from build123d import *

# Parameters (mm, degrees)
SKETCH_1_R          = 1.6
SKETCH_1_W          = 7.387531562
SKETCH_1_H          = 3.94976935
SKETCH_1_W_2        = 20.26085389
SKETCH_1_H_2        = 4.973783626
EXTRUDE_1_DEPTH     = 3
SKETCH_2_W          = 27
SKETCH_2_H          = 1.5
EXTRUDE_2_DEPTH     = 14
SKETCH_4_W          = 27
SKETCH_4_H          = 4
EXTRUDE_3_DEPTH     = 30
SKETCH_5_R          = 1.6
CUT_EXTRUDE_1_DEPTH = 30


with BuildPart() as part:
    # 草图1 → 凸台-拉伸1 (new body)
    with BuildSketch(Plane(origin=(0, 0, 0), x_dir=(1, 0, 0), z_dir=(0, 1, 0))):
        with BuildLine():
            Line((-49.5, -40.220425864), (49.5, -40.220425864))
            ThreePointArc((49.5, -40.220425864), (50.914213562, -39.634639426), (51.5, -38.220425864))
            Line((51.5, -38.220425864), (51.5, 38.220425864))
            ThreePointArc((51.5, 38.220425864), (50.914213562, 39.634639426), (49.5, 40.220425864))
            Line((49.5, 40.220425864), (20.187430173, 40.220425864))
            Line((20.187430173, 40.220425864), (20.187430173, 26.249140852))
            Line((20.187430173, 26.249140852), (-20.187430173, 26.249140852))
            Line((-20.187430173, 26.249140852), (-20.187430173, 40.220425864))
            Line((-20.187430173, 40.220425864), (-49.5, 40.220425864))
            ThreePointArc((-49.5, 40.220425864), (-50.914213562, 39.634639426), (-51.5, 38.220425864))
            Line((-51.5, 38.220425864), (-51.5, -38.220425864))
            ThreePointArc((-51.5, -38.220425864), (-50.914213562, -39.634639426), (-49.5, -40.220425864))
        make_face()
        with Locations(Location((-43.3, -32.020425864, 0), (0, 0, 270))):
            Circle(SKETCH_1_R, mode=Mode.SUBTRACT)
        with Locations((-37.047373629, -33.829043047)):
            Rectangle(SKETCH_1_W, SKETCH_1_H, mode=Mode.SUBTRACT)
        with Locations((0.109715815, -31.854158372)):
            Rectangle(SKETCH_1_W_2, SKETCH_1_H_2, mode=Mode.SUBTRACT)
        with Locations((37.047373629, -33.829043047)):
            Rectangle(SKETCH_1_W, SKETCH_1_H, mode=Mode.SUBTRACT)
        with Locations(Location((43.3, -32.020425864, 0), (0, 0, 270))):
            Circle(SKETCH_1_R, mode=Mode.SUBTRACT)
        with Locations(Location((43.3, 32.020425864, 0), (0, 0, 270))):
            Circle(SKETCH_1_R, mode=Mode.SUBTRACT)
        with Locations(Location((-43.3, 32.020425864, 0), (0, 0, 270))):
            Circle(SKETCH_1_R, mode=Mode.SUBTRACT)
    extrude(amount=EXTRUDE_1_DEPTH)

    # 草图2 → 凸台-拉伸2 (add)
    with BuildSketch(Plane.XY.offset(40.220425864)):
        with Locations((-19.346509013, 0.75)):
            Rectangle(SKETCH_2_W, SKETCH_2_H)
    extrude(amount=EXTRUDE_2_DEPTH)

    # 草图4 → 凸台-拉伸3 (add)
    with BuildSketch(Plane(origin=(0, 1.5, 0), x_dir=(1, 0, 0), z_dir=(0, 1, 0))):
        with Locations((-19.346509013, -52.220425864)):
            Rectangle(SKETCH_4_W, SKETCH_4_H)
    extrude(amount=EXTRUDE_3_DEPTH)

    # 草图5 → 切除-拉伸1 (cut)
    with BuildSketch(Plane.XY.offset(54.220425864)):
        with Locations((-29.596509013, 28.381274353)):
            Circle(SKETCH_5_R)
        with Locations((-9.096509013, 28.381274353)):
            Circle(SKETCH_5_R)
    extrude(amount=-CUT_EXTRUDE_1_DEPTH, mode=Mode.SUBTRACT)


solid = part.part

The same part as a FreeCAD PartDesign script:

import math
import FreeCAD as App
import Part
import Sketcher

V = App.Vector
Q = App.Units.Quantity

doc = App.newDocument("Part")
params = doc.addObject("Spreadsheet::Sheet", "Params")
for row, (alias, value) in enumerate([
    ("sketch1_radius", "2 mm"),
    ("sketch1_diameter", "3.2 mm"),
    ("sketch1_width", "99 mm"),
    ("pad1_length", "3 mm"),
    ("sketch2_width", "27 mm"),
    ("sketch2_height", "1.5 mm"),
    ("pad2_length", "14 mm"),
    ("sketch3_width", "27 mm"),
    ("sketch3_height", "4 mm"),
    ("pad3_length", "30 mm"),
    ("sketch4_diameter", "3.2 mm"),
    ("pocket1_length", "30 mm"),
], start=1):
    params.set(f"A{row}", alias)
    params.set(f"B{row}", "=" + value)
    params.setAlias(f"B{row}", alias)

body = doc.addObject("PartDesign::Body", "Body")

sketch1 = body.newObject("Sketcher::SketchObject", "Sketch")
sketch1.AttachmentSupport = (doc.getObject("XZ_Plane"), [""])
sketch1.MapMode = "FlatFace"
sketch1.addGeometry(Part.LineSegment(V(-49.5, 40.220426, 0), V(49.5, 40.220426, 0)), False)
sketch1.addGeometry(Part.ArcOfCircle(Part.Circle(V(49.5, 38.220426, 0), V(0, 0, 1), 2), math.radians(0), math.radians(90)), False)
sketch1.addGeometry(Part.LineSegment(V(51.5, 38.220426, 0), V(51.5, -38.220426, 0)), False)
sketch1.addGeometry(Part.ArcOfCircle(Part.Circle(V(49.5, -38.220426, 0), V(0, 0, 1), 2), math.radians(-90), math.radians(0)), False)
sketch1.addGeometry(Part.LineSegment(V(49.5, -40.220426, 0), V(20.18743, -40.220426, 0)), False)
sketch1.addGeometry(Part.LineSegment(V(20.18743, -40.220426, 0), V(20.18743, -26.249141, 0)), False)
sketch1.addGeometry(Part.LineSegment(V(20.18743, -26.249141, 0), V(-20.18743, -26.249141, 0)), False)
sketch1.addGeometry(Part.LineSegment(V(-20.18743, -26.249141, 0), V(-20.18743, -40.220426, 0)), False)
sketch1.addGeometry(Part.LineSegment(V(-20.18743, -40.220426, 0), V(-49.5, -40.220426, 0)), False)
sketch1.addGeometry(Part.ArcOfCircle(Part.Circle(V(-49.5, -38.220426, 0), V(0, 0, 1), 2), math.radians(-180), math.radians(-90)), False)
sketch1.addGeometry(Part.LineSegment(V(-51.5, -38.220426, 0), V(-51.5, 38.220426, 0)), False)
sketch1.addGeometry(Part.ArcOfCircle(Part.Circle(V(-49.5, 38.220426, 0), V(0, 0, 1), 2), math.radians(90), math.radians(180)), False)
sketch1.addGeometry(Part.Circle(V(-43.3, 32.020426, 0), V(0, 0, 1), 1.6), False)
sketch1.addGeometry(Part.LineSegment(V(-33.353608, 35.803928, 0), V(-40.741139, 35.803928, 0)), False)
sketch1.addGeometry(Part.LineSegment(V(-40.741139, 35.803928, 0), V(-40.741139, 31.854158, 0)), False)
sketch1.addGeometry(Part.LineSegment(V(-40.741139, 31.854158, 0), V(-33.353608, 31.854158, 0)), False)
sketch1.addGeometry(Part.LineSegment(V(-33.353608, 31.854158, 0), V(-33.353608, 35.803928, 0)), False)
sketch1.addGeometry(Part.LineSegment(V(10.240143, 34.34105, 0), V(-10.020711, 34.34105, 0)), False)
sketch1.addGeometry(Part.LineSegment(V(-10.020711, 34.34105, 0), V(-10.020711, 29.367267, 0)), False)
sketch1.addGeometry(Part.LineSegment(V(-10.020711, 29.367267, 0), V(10.240143, 29.367267, 0)), False)
sketch1.addGeometry(Part.LineSegment(V(10.240143, 29.367267, 0), V(10.240143, 34.34105, 0)), False)
sketch1.addGeometry(Part.LineSegment(V(40.741139, 35.803928, 0), V(33.353608, 35.803928, 0)), False)
sketch1.addGeometry(Part.LineSegment(V(33.353608, 35.803928, 0), V(33.353608, 31.854158, 0)), False)
sketch1.addGeometry(Part.LineSegment(V(33.353608, 31.854158, 0), V(40.741139, 31.854158, 0)), False)
sketch1.addGeometry(Part.LineSegment(V(40.741139, 31.854158, 0), V(40.741139, 35.803928, 0)), False)
sketch1.addGeometry(Part.Circle(V(43.3, 32.020426, 0), V(0, 0, 1), 1.6), False)
sketch1.addGeometry(Part.Circle(V(-43.3, -32.020426, 0), V(0, 0, 1), 1.6), False)
sketch1.addGeometry(Part.Circle(V(43.3, -32.020426, 0), V(0, 0, 1), 1.6), False)
sketch1.addConstraint(Sketcher.Constraint("Tangent", 0, 2, 1, 2))
sketch1.addConstraint(Sketcher.Constraint("Tangent", 1, 1, 2, 1))
sketch1.addConstraint(Sketcher.Constraint("Tangent", 2, 2, 3, 2))
sketch1.addConstraint(Sketcher.Constraint("Tangent", 3, 1, 4, 1))
sketch1.addConstraint(Sketcher.Constraint("Coincident", 4, 2, 5, 1))
sketch1.addConstraint(Sketcher.Constraint("Coincident", 5, 2, 6, 1))
sketch1.addConstraint(Sketcher.Constraint("Coincident", 6, 2, 7, 1))
sketch1.addConstraint(Sketcher.Constraint("Coincident", 7, 2, 8, 1))
sketch1.addConstraint(Sketcher.Constraint("Tangent", 8, 2, 9, 2))
sketch1.addConstraint(Sketcher.Constraint("Tangent", 9, 1, 10, 1))
sketch1.addConstraint(Sketcher.Constraint("Tangent", 10, 2, 11, 2))
sketch1.addConstraint(Sketcher.Constraint("Tangent", 11, 1, 0, 1))
sketch1.addConstraint(Sketcher.Constraint("Coincident", 13, 2, 14, 1))
sketch1.addConstraint(Sketcher.Constraint("Coincident", 14, 2, 15, 1))
sketch1.addConstraint(Sketcher.Constraint("Coincident", 15, 2, 16, 1))
sketch1.addConstraint(Sketcher.Constraint("Coincident", 16, 2, 13, 1))
sketch1.addConstraint(Sketcher.Constraint("Coincident", 17, 2, 18, 1))
sketch1.addConstraint(Sketcher.Constraint("Coincident", 18, 2, 19, 1))
sketch1.addConstraint(Sketcher.Constraint("Coincident", 19, 2, 20, 1))
sketch1.addConstraint(Sketcher.Constraint("Coincident", 20, 2, 17, 1))
sketch1.addConstraint(Sketcher.Constraint("Coincident", 21, 2, 22, 1))
sketch1.addConstraint(Sketcher.Constraint("Coincident", 22, 2, 23, 1))
sketch1.addConstraint(Sketcher.Constraint("Coincident", 23, 2, 24, 1))
sketch1.addConstraint(Sketcher.Constraint("Coincident", 24, 2, 21, 1))
sketch1.addConstraint(Sketcher.Constraint("Horizontal", 0))
sketch1.addConstraint(Sketcher.Constraint("Vertical", 2))
sketch1.addConstraint(Sketcher.Constraint("Horizontal", 4))
sketch1.addConstraint(Sketcher.Constraint("Vertical", 5))
sketch1.addConstraint(Sketcher.Constraint("Horizontal", 6))
sketch1.addConstraint(Sketcher.Constraint("Vertical", 7))
sketch1.addConstraint(Sketcher.Constraint("Horizontal", 8))
sketch1.addConstraint(Sketcher.Constraint("Vertical", 10))
sketch1.addConstraint(Sketcher.Constraint("Horizontal", 13))
sketch1.addConstraint(Sketcher.Constraint("Vertical", 14))
sketch1.addConstraint(Sketcher.Constraint("Horizontal", 15))
sketch1.addConstraint(Sketcher.Constraint("Vertical", 16))
sketch1.addConstraint(Sketcher.Constraint("Horizontal", 17))
sketch1.addConstraint(Sketcher.Constraint("Vertical", 18))
sketch1.addConstraint(Sketcher.Constraint("Horizontal", 19))
sketch1.addConstraint(Sketcher.Constraint("Vertical", 20))
sketch1.addConstraint(Sketcher.Constraint("Horizontal", 21))
sketch1.addConstraint(Sketcher.Constraint("Vertical", 22))
sketch1.addConstraint(Sketcher.Constraint("Horizontal", 23))
sketch1.addConstraint(Sketcher.Constraint("Vertical", 24))
sketch1.addConstraint(Sketcher.Constraint("Equal", 1, 3))
sketch1.addConstraint(Sketcher.Constraint("Equal", 3, 9))
sketch1.addConstraint(Sketcher.Constraint("Equal", 9, 11))
sketch1.addConstraint(Sketcher.Constraint("Equal", 12, 25))
sketch1.addConstraint(Sketcher.Constraint("Equal", 25, 26))
sketch1.addConstraint(Sketcher.Constraint("Equal", 26, 27))
sketch1.addConstraint(Sketcher.Constraint("Symmetric", 1, 3, 9, 3, -1, 1))
sketch1.addConstraint(Sketcher.Constraint("Symmetric", 25, 3, 26, 3, -1, 1))
sketch1.addConstraint(Sketcher.Constraint("Symmetric", 12, 3, 27, 3, -1, 1))
sketch1.addConstraint(Sketcher.Constraint("Symmetric", 12, 3, 25, 3, -2))
sketch1.addConstraint(Sketcher.Constraint("Symmetric", 4, 2, 7, 2, -2))
sketch1.addConstraint(Sketcher.Constraint("Symmetric", 16, 2, 21, 2, -2))
sketch1.addConstraint(Sketcher.Constraint("Symmetric", 14, 2, 23, 2, -2))
sketch1.addConstraint(Sketcher.Constraint("Radius", 1, Q("2 mm")))
sketch1.addConstraint(Sketcher.Constraint("Diameter", 12, Q("3.2 mm")))
sketch1.addConstraint(Sketcher.Constraint("DistanceX", 0, 1, 0, 2, Q("99 mm")))
sketch1.addConstraint(Sketcher.Constraint("DistanceX", 12, 3, -1, 1, Q("43.3 mm")))
sketch1.addConstraint(Sketcher.Constraint("DistanceY", 12, 3, 11, 3, Q("6.2 mm")))
sketch1.addConstraint(Sketcher.Constraint("DistanceX", 4, 2, 4, 1, Q("29.31257 mm")))
sketch1.addConstraint(Sketcher.Constraint("DistanceX", 13, 2, 13, 1, Q("7.387532 mm")))
sketch1.addConstraint(Sketcher.Constraint("DistanceY", 2, 2, 2, 1, Q("76.440852 mm")))
sketch1.addConstraint(Sketcher.Constraint("DistanceY", 14, 2, 14, 1, Q("3.949769 mm")))
sketch1.addConstraint(Sketcher.Constraint("DistanceY", 12, 3, 13, 2, Q("3.783502 mm")))
sketch1.addConstraint(Sketcher.Constraint("DistanceX", 17, 2, 17, 1, Q("20.260854 mm")))
sketch1.addConstraint(Sketcher.Constraint("DistanceY", 5, 1, 5, 2, Q("13.971285 mm")))
sketch1.addConstraint(Sketcher.Constraint("DistanceY", 18, 2, 18, 1, Q("4.973784 mm")))
sketch1.addConstraint(Sketcher.Constraint("DistanceX", 13, 2, -1, 1, Q("40.741139 mm")))
sketch1.addConstraint(Sketcher.Constraint("DistanceX", 17, 2, -1, 1, Q("10.020711 mm")))
sketch1.addConstraint(Sketcher.Constraint("DistanceY", -1, 1, 17, 2, Q("34.34105 mm")))
sketch1.setExpression("Constraints[57]", "Params.sketch1_radius")
sketch1.setExpression("Constraints[58]", "Params.sketch1_diameter")
sketch1.setExpression("Constraints[59]", "Params.sketch1_width")
pad1 = body.newObject("PartDesign::Pad", "Pad")
pad1.Profile = sketch1
pad1.setExpression("Length", "Params.pad1_length")
pad1.Reversed = True

sketch2 = body.newObject("Sketcher::SketchObject", "Sketch001")
sketch2.AttachmentSupport = (doc.getObject("XY_Plane"), [""])
sketch2.MapMode = "FlatFace"
sketch2.AttachmentOffset = App.Placement(V(0, 0, 40.220426), App.Rotation())
sketch2.addGeometry(Part.LineSegment(V(-32.846509, 1.5, 0), V(-32.846509, 0, 0)), False)
sketch2.addGeometry(Part.LineSegment(V(-32.846509, 0, 0), V(-5.846509, 0, 0)), False)
sketch2.addGeometry(Part.LineSegment(V(-5.846509, 0, 0), V(-5.846509, 1.5, 0)), False)
sketch2.addGeometry(Part.LineSegment(V(-5.846509, 1.5, 0), V(-32.846509, 1.5, 0)), False)
sketch2.addConstraint(Sketcher.Constraint("Coincident", 0, 2, 1, 1))
sketch2.addConstraint(Sketcher.Constraint("Coincident", 1, 2, 2, 1))
sketch2.addConstraint(Sketcher.Constraint("Coincident", 2, 2, 3, 1))
sketch2.addConstraint(Sketcher.Constraint("Coincident", 3, 2, 0, 1))
sketch2.addConstraint(Sketcher.Constraint("Vertical", 0))
sketch2.addConstraint(Sketcher.Constraint("Horizontal", 1))
sketch2.addConstraint(Sketcher.Constraint("Vertical", 2))
sketch2.addConstraint(Sketcher.Constraint("Horizontal", 3))
sketch2.addConstraint(Sketcher.Constraint("PointOnObject", 0, 2, -1))
sketch2.addConstraint(Sketcher.Constraint("DistanceX", 1, 1, 1, 2, Q("27 mm")))
sketch2.addConstraint(Sketcher.Constraint("DistanceY", 0, 2, 0, 1, Q("1.5 mm")))
sketch2.addConstraint(Sketcher.Constraint("DistanceX", 0, 2, -1, 1, Q("32.846509 mm")))
sketch2.setExpression("Constraints[9]", "Params.sketch2_width")
sketch2.setExpression("Constraints[10]", "Params.sketch2_height")
pad2 = body.newObject("PartDesign::Pad", "Pad001")
pad2.Profile = sketch2
pad2.setExpression("Length", "Params.pad2_length")

sketch3 = body.newObject("Sketcher::SketchObject", "Sketch002")
sketch3.AttachmentSupport = (doc.getObject("XZ_Plane"), [""])
sketch3.MapMode = "FlatFace"
sketch3.AttachmentOffset = App.Placement(V(0, 0, -1.5), App.Rotation())
sketch3.addGeometry(Part.LineSegment(V(-32.846509, 50.220426, 0), V(-32.846509, 54.220426, 0)), False)
sketch3.addGeometry(Part.LineSegment(V(-32.846509, 54.220426, 0), V(-5.846509, 54.220426, 0)), False)
sketch3.addGeometry(Part.LineSegment(V(-5.846509, 54.220426, 0), V(-5.846509, 50.220426, 0)), False)
sketch3.addGeometry(Part.LineSegment(V(-5.846509, 50.220426, 0), V(-32.846509, 50.220426, 0)), False)
sketch3.addConstraint(Sketcher.Constraint("Coincident", 0, 2, 1, 1))
sketch3.addConstraint(Sketcher.Constraint("Coincident", 1, 2, 2, 1))
sketch3.addConstraint(Sketcher.Constraint("Coincident", 2, 2, 3, 1))
sketch3.addConstraint(Sketcher.Constraint("Coincident", 3, 2, 0, 1))
sketch3.addConstraint(Sketcher.Constraint("Vertical", 0))
sketch3.addConstraint(Sketcher.Constraint("Horizontal", 1))
sketch3.addConstraint(Sketcher.Constraint("Vertical", 2))
sketch3.addConstraint(Sketcher.Constraint("Horizontal", 3))
sketch3.addConstraint(Sketcher.Constraint("DistanceX", 1, 1, 1, 2, Q("27 mm")))
sketch3.addConstraint(Sketcher.Constraint("DistanceY", 0, 1, 0, 2, Q("4 mm")))
sketch3.addConstraint(Sketcher.Constraint("DistanceX", 0, 2, -1, 1, Q("32.846509 mm")))
sketch3.addConstraint(Sketcher.Constraint("DistanceY", -1, 1, 0, 2, Q("54.220426 mm")))
sketch3.setExpression("Constraints[8]", "Params.sketch3_width")
sketch3.setExpression("Constraints[9]", "Params.sketch3_height")
pad3 = body.newObject("PartDesign::Pad", "Pad002")
pad3.Profile = sketch3
pad3.setExpression("Length", "Params.pad3_length")
pad3.Reversed = True

sketch4 = body.newObject("Sketcher::SketchObject", "Sketch003")
sketch4.AttachmentSupport = (doc.getObject("XY_Plane"), [""])
sketch4.MapMode = "FlatFace"
sketch4.AttachmentOffset = App.Placement(V(0, 0, 54.220426), App.Rotation())
sketch4.addGeometry(Part.Circle(V(-29.596509, 28.381274, 0), V(0, 0, 1), 1.6), False)
sketch4.addGeometry(Part.Circle(V(-9.096509, 28.381274, 0), V(0, 0, 1), 1.6), False)
sketch4.addConstraint(Sketcher.Constraint("Equal", 0, 1))
sketch4.addConstraint(Sketcher.Constraint("Horizontal", 0, 3, 1, 3))
sketch4.addConstraint(Sketcher.Constraint("Diameter", 0, Q("3.2 mm")))
sketch4.addConstraint(Sketcher.Constraint("DistanceX", 0, 3, 1, 3, Q("20.5 mm")))
sketch4.addConstraint(Sketcher.Constraint("DistanceX", 0, 3, -1, 1, Q("29.596509 mm")))
sketch4.addConstraint(Sketcher.Constraint("DistanceY", -1, 1, 0, 3, Q("28.381274 mm")))
sketch4.setExpression("Constraints[2]", "Params.sketch4_diameter")
pocket1 = body.newObject("PartDesign::Pocket", "Pocket")
pocket1.Profile = sketch4
pocket1.setExpression("Length", "Params.pocket1_length")

doc.recompute()
